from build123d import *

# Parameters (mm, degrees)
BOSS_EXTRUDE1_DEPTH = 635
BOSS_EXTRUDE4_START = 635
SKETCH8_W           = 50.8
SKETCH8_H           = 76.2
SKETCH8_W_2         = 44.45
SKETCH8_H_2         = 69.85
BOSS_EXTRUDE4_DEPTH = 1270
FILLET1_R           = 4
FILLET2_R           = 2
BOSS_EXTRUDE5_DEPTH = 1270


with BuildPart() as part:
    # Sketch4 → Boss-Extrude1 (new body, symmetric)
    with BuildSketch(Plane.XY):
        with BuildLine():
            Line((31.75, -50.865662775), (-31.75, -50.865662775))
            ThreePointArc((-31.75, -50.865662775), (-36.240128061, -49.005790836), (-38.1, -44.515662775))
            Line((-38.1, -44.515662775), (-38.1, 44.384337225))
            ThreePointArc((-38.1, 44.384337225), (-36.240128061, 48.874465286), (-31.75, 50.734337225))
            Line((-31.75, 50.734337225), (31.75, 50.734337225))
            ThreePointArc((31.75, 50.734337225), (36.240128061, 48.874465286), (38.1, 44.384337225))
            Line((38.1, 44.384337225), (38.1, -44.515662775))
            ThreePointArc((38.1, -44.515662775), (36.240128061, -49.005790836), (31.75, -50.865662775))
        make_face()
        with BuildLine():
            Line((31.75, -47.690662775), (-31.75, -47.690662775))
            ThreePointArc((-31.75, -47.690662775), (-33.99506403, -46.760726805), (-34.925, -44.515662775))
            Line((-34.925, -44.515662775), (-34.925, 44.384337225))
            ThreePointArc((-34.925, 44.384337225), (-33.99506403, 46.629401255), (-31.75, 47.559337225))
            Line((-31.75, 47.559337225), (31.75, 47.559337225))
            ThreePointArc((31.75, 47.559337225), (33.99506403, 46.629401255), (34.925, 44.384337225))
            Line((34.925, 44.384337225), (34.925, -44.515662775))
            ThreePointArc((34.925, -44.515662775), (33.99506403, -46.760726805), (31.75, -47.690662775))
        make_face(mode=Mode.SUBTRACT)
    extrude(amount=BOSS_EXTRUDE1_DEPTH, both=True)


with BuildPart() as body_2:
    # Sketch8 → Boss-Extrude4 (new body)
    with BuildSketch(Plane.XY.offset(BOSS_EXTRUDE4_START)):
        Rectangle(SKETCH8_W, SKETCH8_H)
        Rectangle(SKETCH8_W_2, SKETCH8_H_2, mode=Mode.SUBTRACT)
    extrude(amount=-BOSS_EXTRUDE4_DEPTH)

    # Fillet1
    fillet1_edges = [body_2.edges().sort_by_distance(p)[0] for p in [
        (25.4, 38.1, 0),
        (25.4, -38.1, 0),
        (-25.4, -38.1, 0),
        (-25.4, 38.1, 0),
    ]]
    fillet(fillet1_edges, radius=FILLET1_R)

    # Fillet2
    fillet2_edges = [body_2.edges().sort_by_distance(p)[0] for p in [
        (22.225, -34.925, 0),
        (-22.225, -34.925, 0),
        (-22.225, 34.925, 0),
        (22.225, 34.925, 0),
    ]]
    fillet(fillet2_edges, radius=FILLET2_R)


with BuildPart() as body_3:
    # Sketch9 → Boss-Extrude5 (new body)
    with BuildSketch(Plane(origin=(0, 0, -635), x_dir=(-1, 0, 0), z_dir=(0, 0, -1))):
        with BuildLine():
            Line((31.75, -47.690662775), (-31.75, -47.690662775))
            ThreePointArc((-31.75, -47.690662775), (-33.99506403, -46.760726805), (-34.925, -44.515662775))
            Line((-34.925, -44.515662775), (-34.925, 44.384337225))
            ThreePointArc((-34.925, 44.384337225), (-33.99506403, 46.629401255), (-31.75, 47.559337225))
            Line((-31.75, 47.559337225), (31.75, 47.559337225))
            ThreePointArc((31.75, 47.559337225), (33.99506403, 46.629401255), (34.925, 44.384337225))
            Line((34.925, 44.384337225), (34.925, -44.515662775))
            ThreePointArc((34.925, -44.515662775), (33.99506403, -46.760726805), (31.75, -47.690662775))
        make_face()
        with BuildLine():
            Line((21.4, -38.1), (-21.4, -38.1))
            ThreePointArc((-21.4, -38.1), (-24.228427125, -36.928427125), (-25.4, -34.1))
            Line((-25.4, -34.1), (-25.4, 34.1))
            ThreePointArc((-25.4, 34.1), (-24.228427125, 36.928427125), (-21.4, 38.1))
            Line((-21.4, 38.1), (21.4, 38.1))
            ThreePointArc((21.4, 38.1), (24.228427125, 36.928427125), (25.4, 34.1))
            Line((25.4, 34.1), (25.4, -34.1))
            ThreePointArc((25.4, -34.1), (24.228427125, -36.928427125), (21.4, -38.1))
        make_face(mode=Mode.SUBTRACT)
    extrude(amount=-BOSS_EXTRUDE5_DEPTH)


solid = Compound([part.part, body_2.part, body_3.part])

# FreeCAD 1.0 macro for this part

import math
import FreeCAD as App
import Part
import Sketcher
Q = App.Units.Quantity


def edges_at(feature, points):
    """Names of the edges that pass closest to the given points."""
    edges = feature.Shape.Edges
    near = lambda p: min(range(len(edges)), key=lambda i: edges[i].distToShape(Part.Vertex(*p))[0])
    return sorted({f"Edge{near(p) + 1}" for p in points})


def add_polygon(sketch, points):
    """Adds a closed chain of lines whose ends are joined by coincident constraints."""
    first, n = sketch.GeometryCount, len(points)
    for a, b in zip(points, points[1:] + points[:1]):
        sketch.addGeometry(Part.LineSegment(App.Vector(*a, 0), App.Vector(*b, 0)), False)
    for i in range(n):
        sketch.addConstraint(Sketcher.Constraint("Coincident", first + i, 2, first + (i + 1) % n, 1))

doc = App.newDocument("Part")
body = doc.addObject("PartDesign::Body", "Body")

# Sketch on XY plane
sketch1 = doc.addObject("Sketcher::SketchObject", "Sketch")
body.addObject(sketch1)
sketch1.AttachmentSupport = (doc.XY_Plane, [""])
sketch1.MapMode = "FlatFace"
sketch1.addGeometry([
    Part.LineSegment(App.Vector(-31.8, -50.9, 0), App.Vector(31.8, -50.9, 0)),  # 0
    Part.ArcOfCircle(Part.Circle(App.Vector(31.8, -44.5, 0), App.Vector(0, 0, 1), 6.3), math.radians(-90), math.radians(0)),  # 1
    Part.LineSegment(App.Vector(38.1, -44.5, 0), App.Vector(38.1, 44.4, 0)),  # 2
    Part.ArcOfCircle(Part.Circle(App.Vector(31.8, 44.4, 0), App.Vector(0, 0, 1), 6.3), math.radians(0), math.radians(90)),  # 3
    Part.LineSegment(App.Vector(31.8, 50.7, 0), App.Vector(-31.8, 50.7, 0)),  # 4
    Part.ArcOfCircle(Part.Circle(App.Vector(-31.8, 44.4, 0), App.Vector(0, 0, 1), 6.3), math.radians(90), math.radians(180)),  # 5
    Part.LineSegment(App.Vector(-38.1, 44.4, 0), App.Vector(-38.1, -44.5, 0)),  # 6
    Part.ArcOfCircle(Part.Circle(App.Vector(-31.8, -44.5, 0), App.Vector(0, 0, 1), 6.3), math.radians(180), math.radians(270)),  # 7
    Part.LineSegment(App.Vector(31.8, -47.7, 0), App.Vector(-31.8, -47.7, 0)),  # 8
    Part.ArcOfCircle(Part.Circle(App.Vector(-31.7, -44.5, 0), App.Vector(0, 0, 1), 3.2), math.radians(-180), math.radians(-90)),  # 9
    Part.LineSegment(App.Vector(-34.9, -44.5, 0), App.Vector(-34.9, 44.4, 0)),  # 10
    Part.ArcOfCircle(Part.Circle(App.Vector(-31.7, 44.4, 0), App.Vector(0, 0, 1), 3.2), math.radians(90), math.radians(180)),  # 11
    Part.LineSegment(App.Vector(-31.8, 47.6, 0), App.Vector(31.8, 47.6, 0)),  # 12
    Part.ArcOfCircle(Part.Circle(App.Vector(31.7, 44.4, 0), App.Vector(0, 0, 1), 3.2), math.radians(0), math.radians(90)),  # 13
    Part.LineSegment(App.Vector(34.9, 44.4, 0), App.Vector(34.9, -44.5, 0)),  # 14
    Part.ArcOfCircle(Part.Circle(App.Vector(31.7, -44.5, 0), App.Vector(0, 0, 1), 3.2), math.radians(-90), math.radians(0)),  # 15
], False)
sketch1.addConstraint([
    Sketcher.Constraint("Tangent", 0, 2, 1, 1),
    Sketcher.Constraint("Tangent", 1, 2, 2, 1),
    Sketcher.Constraint("Tangent", 2, 2, 3, 1),
    Sketcher.Constraint("Tangent", 3, 2, 4, 1),
    Sketcher.Constraint("Tangent", 4, 2, 5, 1),
    Sketcher.Constraint("Tangent", 5, 2, 6, 1),
    Sketcher.Constraint("Tangent", 6, 2, 7, 1),
    Sketcher.Constraint("Tangent", 7, 2, 0, 1),
    Sketcher.Constraint("Tangent", 8, 2, 9, 2),
    Sketcher.Constraint("Tangent", 9, 1, 10, 1),
    Sketcher.Constraint("Tangent", 10, 2, 11, 2),
    Sketcher.Constraint("Tangent", 11, 1, 12, 1),
    Sketcher.Constraint("Tangent", 12, 2, 13, 2),
    Sketcher.Constraint("Tangent", 13, 1, 14, 1),
    Sketcher.Constraint("Tangent", 14, 2, 15, 2),
    Sketcher.Constraint("Tangent", 15, 1, 8, 1),
    Sketcher.Constraint("Horizontal", 0),
    Sketcher.Constraint("Vertical", 2),
    Sketcher.Constraint("Horizontal", 4),
    Sketcher.Constraint("Vertical", 6),
    Sketcher.Constraint("Horizontal", 8),
    Sketcher.Constraint("Vertical", 10),
    Sketcher.Constraint("Horizontal", 12),
    Sketcher.Constraint("Vertical", 14),
    Sketcher.Constraint("Coincident", 9, 3, 7, 3),
    Sketcher.Constraint("Coincident", 11, 3, 5, 3),
    Sketcher.Constraint("Coincident", 13, 3, 3, 3),
    Sketcher.Constraint("Equal", 1, 3),
    Sketcher.Constraint("Equal", 3, 5),
    Sketcher.Constraint("Equal", 5, 7),
    Sketcher.Constraint("Equal", 13, 15),
    Sketcher.Constraint("Radius", 1, Q("0.25 in")),
    Sketcher.Constraint("DistanceX", 0, 1, 0, 2, Q("2.5 in")),
    Sketcher.Constraint("DistanceY", 2, 1, 2, 2, Q("3.5 in")),
    Sketcher.Constraint("Radius", 9, Q("0.125 in")),
    Sketcher.Constraint("DistanceX", -1, 1, 1, 2, Q("1.5 in")),
    Sketcher.Constraint("DistanceY", 1, 3, -1, 1, Q("44.515663 mm")),
])
pad1 = doc.addObject("PartDesign::Pad", "Pad")
body.addObject(pad1)
pad1.Profile = sketch1
pad1.Length = Q("50 in")
pad1.Midplane = True
body2 = doc.addObject("PartDesign::Body", "Body001")

# Sketch on XY plane
sketch2 = doc.addObject("Sketcher::SketchObject", "Sketch001")
body2.addObject(sketch2)
sketch2.AttachmentSupport = (doc.getObject("XY_Plane001"), [""])
sketch2.MapMode = "FlatFace"
sketch2.AttachmentOffset = App.Placement(App.Vector(0, 0, 25 * 25.4), App.Rotation())
add_polygon(sketch2, [(-25, 38), (-25, -38), (25, -38), (25, 38)])  # lines 0-3
add_polygon(sketch2, [(22, -35), (-22, -35), (-22, 35), (22, 35)])  # lines 4-7
sketch2.addConstraint([
    Sketcher.Constraint("Vertical", 0),
    Sketcher.Constraint("Horizontal", 1),
    Sketcher.Constraint("Vertical", 2),
    Sketcher.Constraint("Horizontal", 3),
    Sketcher.Constraint("Horizontal", 4),
    Sketcher.Constraint("Vertical", 5),
    Sketcher.Constraint("Horizontal", 6),
    Sketcher.Constraint("Vertical", 7),
    Sketcher.Constraint("Symmetric", 0, 2, 2, 2, -1, 1),
    Sketcher.Constraint("Symmetric", 4, 2, 6, 2, -1, 1),
    Sketcher.Constraint("DistanceX", 1, 1, 1, 2, Q("2 in")),
    Sketcher.Constraint("DistanceY", 0, 2, 0, 1, Q("3 in")),
    Sketcher.Constraint("DistanceX", 4, 2, 4, 1, Q("1.75 in")),
    Sketcher.Constraint("DistanceY", 5, 1, 5, 2, Q("2.75 in")),
])
pad2 = doc.addObject("PartDesign::Pad", "Pad001")
body2.addObject(pad2)
pad2.Profile = sketch2
pad2.Length = Q("50 in")
pad2.Reversed = True
doc.recompute()

fillet = doc.addObject("PartDesign::Fillet", "Fillet")
body2.addObject(fillet)
fillet.Base = (pad2, edges_at(pad2, [
    (25.4, 38.1, 0),
    (25.4, -38.1, 0),
    (-25.4, -38.1, 0),
    (-25.4, 38.1, 0),
]))
fillet.Radius = 4
doc.recompute()

fillet2 = doc.addObject("PartDesign::Fillet", "Fillet001")
body2.addObject(fillet2)
fillet2.Base = (fillet, edges_at(fillet, [
    (22.225, -34.925, 0),
    (-22.225, -34.925, 0),
    (-22.225, 34.925, 0),
    (22.225, 34.925, 0),
]))
fillet2.Radius = 2
body3 = doc.addObject("PartDesign::Body", "Body002")

# Sketch on XY plane
sketch3 = doc.addObject("Sketcher::SketchObject", "Sketch002")
body3.addObject(sketch3)
sketch3.AttachmentSupport = (doc.getObject("XY_Plane002"), [""])
sketch3.MapMode = "FlatFace"
sketch3.AttachmentOffset = App.Placement(App.Vector(0, 0, -25 * 25.4), App.Rotation())
sketch3.addGeometry([
    Part.LineSegment(App.Vector(31.8, -47.7, 0), App.Vector(-31.8, -47.7, 0)),  # 0
    Part.ArcOfCircle(Part.Circle(App.Vector(-31.7, -44.5, 0), App.Vector(0, 0, 1), 3.2), math.radians(-180), math.radians(-90)),  # 1
    Part.LineSegment(App.Vector(-34.9, -44.5, 0), App.Vector(-34.9, 44.4, 0)),  # 2
    Part.ArcOfCircle(Part.Circle(App.Vector(-31.7, 44.4, 0), App.Vector(0, 0, 1), 3.2), math.radians(90), math.radians(180)),  # 3
    Part.LineSegment(App.Vector(-31.8, 47.6, 0), App.Vector(31.8, 47.6, 0)),  # 4
    Part.ArcOfCircle(Part.Circle(App.Vector(31.7, 44.4, 0), App.Vector(0, 0, 1), 3.2), math.radians(0), math.radians(90)),  # 5
    Part.LineSegment(App.Vector(34.9, 44.4, 0), App.Vector(34.9, -44.5, 0)),  # 6
    Part.ArcOfCircle(Part.Circle(App.Vector(31.7, -44.5, 0), App.Vector(0, 0, 1), 3.2), math.radians(-90), math.radians(0)),  # 7
    Part.LineSegment(App.Vector(-21.4, -38.1, 0), App.Vector(21.4, -38.1, 0)),  # 8
    Part.ArcOfCircle(Part.Circle(App.Vector(21.4, -34.1, 0), App.Vector(0, 0, 1), 4), math.radians(-90), math.radians(0)),  # 9
    Part.LineSegment(App.Vector(25.4, -34.1, 0), App.Vector(25.4, 34.1, 0)),  # 10
    Part.ArcOfCircle(Part.Circle(App.Vector(21.4, 34.1, 0), App.Vector(0, 0, 1), 4), math.radians(0), math.radians(90)),  # 11
    Part.LineSegment(App.Vector(21.4, 38.1, 0), App.Vector(-21.4, 38.1, 0)),  # 12
    Part.ArcOfCircle(Part.Circle(App.Vector(-21.4, 34.1, 0), App.Vector(0, 0, 1), 4), math.radians(90), math.radians(180)),  # 13
    Part.LineSegment(App.Vector(-25.4, 34.1, 0), App.Vector(-25.4, -34.1, 0)),  # 14
    Part.ArcOfCircle(Part.Circle(App.Vector(-21.4, -34.1, 0), App.Vector(0, 0, 1), 4), math.radians(180), math.radians(270)),  # 15
], False)
sketch3.addConstraint([
    Sketcher.Constraint("Tangent", 0, 2, 1, 2),
    Sketcher.Constraint("Tangent", 1, 1, 2, 1),
    Sketcher.Constraint("Tangent", 2, 2, 3, 2),
    Sketcher.Constraint("Tangent", 3, 1, 4, 1),
    Sketcher.Constraint("Tangent", 4, 2, 5, 2),
    Sketcher.Constraint("Tangent", 5, 1, 6, 1),
    Sketcher.Constraint("Tangent", 6, 2, 7, 2),
    Sketcher.Constraint("Tangent", 7, 1, 0, 1),
    Sketcher.Constraint("Tangent", 8, 2, 9, 1),
    Sketcher.Constraint("Tangent", 9, 2, 10, 1),
    Sketcher.Constraint("Tangent", 10, 2, 11, 1),
    Sketcher.Constraint("Tangent", 11, 2, 12, 1),
    Sketcher.Constraint("Tangent", 12, 2, 13, 1),
    Sketcher.Constraint("Tangent", 13, 2, 14, 1),
    Sketcher.Constraint("Tangent", 14, 2, 15, 1),
    Sketcher.Constraint("Tangent", 15, 2, 8, 1),
    Sketcher.Constraint("Horizontal", 0),
    Sketcher.Constraint("Vertical", 2),
    Sketcher.Constraint("Horizontal", 4),
    Sketcher.Constraint("Vertical", 6),
    Sketcher.Constraint("Horizontal", 8),
    Sketcher.Constraint("Vertical", 10),
    Sketcher.Constraint("Horizontal", 12),
    Sketcher.Constraint("Vertical", 14),
    Sketcher.Constraint("Equal", 1, 3),
    Sketcher.Constraint("Equal", 3, 5),
    Sketcher.Constraint("Equal", 5, 7),
    Sketcher.Constraint("Equal", 9, 11),
    Sketcher.Constraint("Equal", 11, 13),
    Sketcher.Constraint("Equal", 13, 15),
    Sketcher.Constraint("Symmetric", 9, 3, 13, 3, -1, 1),
    Sketcher.Constraint("DistanceX", 0, 2, 0, 1, Q("2.5 in")),
    Sketcher.Constraint("DistanceY", 2, 1, 2, 2, Q("3.5 in")),
    Sketcher.Constraint("DistanceX", -1, 1, 9, 2, Q("1 in")),
    Sketcher.Constraint("Radius", 1, Q("0.125 in")),
    Sketcher.Constraint("DistanceY", 8, 2, -1, 1, Q("1.5 in")),
    Sketcher.Constraint("DistanceX", 1, 3, -1, 1, Q("1.25 in")),
    Sketcher.Constraint("Radius", 9, Q("4 mm")),
    Sketcher.Constraint("DistanceY", 1, 3, -1, 1, Q("44.515663 mm")),
])
pad3 = doc.addObject("PartDesign::Pad", "Pad002")
body3.addObject(pad3)
pad3.Profile = sketch3
pad3.Length = Q("50 in")

doc.recompute()
